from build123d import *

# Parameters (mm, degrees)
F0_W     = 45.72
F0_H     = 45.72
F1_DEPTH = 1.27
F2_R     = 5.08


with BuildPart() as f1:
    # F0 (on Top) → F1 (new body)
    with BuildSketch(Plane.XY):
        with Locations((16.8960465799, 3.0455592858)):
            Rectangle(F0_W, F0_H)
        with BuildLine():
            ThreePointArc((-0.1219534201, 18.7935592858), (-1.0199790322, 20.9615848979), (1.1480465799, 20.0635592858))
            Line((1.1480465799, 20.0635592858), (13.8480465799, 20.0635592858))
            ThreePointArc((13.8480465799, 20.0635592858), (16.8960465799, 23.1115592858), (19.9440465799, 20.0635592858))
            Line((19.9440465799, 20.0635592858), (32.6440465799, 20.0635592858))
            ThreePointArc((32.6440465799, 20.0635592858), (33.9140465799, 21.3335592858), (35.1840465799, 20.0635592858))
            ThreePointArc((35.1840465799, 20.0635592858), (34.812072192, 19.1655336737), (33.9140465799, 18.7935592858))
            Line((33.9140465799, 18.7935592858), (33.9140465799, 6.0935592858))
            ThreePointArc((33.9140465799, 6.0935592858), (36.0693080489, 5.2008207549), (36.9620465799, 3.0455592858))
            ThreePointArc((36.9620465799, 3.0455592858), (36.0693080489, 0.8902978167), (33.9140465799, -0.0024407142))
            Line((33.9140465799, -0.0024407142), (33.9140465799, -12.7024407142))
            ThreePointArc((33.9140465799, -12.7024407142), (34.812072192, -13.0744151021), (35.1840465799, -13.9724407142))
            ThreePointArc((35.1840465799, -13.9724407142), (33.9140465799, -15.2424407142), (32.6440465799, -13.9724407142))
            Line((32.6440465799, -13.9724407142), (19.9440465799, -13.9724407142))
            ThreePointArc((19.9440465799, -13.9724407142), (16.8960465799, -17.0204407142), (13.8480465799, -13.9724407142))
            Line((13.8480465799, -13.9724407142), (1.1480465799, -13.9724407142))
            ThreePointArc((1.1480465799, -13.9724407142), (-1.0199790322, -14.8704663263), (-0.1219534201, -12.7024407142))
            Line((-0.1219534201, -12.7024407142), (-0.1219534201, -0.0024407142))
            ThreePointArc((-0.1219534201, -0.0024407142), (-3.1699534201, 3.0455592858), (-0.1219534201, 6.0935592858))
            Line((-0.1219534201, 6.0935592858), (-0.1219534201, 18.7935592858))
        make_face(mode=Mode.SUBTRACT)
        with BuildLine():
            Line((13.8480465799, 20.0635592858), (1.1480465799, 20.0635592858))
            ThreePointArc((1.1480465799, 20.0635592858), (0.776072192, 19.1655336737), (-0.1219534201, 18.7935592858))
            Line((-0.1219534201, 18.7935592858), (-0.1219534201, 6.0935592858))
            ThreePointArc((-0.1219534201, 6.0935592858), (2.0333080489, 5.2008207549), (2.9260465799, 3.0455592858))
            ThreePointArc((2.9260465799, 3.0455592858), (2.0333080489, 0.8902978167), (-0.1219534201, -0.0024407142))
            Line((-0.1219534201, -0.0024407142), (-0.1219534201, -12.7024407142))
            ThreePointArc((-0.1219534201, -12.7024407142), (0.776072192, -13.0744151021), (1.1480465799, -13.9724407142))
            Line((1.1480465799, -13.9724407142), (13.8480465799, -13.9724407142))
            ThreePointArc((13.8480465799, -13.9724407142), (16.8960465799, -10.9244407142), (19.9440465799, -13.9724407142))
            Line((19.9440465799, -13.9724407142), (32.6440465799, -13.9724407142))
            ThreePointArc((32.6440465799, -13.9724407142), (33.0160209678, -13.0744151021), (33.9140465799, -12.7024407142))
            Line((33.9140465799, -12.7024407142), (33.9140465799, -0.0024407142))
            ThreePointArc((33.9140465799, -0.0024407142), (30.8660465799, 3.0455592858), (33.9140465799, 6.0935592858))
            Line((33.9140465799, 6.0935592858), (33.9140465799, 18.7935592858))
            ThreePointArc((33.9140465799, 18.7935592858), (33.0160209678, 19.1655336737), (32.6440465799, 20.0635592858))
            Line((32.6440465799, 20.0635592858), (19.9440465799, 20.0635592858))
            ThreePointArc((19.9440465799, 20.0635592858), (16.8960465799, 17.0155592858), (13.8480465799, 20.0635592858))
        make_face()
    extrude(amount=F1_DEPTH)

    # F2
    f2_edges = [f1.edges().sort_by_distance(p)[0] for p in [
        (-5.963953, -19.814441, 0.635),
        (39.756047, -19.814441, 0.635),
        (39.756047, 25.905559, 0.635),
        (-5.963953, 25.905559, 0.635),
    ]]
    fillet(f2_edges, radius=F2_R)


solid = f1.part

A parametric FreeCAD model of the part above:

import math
import FreeCAD as App
import Part
import Sketcher
from FreeCAD import Vector
Q = App.Units.Quantity


def edges_at(feature, points):
    """Names of the edges that pass closest to the given points."""
    edges = feature.Shape.Edges
    near = lambda p: min(range(len(edges)), key=lambda i: edges[i].distToShape(Part.Vertex(*p))[0])
    return sorted({f"Edge{near(p) + 1}" for p in points})

doc = App.newDocument("Part")
body = doc.addObject("PartDesign::Body", "Body")

sketch1 = body.newObject("Sketcher::SketchObject", "Sketch")
sketch1.AttachmentSupport = (doc.getObject("XY_Plane"), [""])
sketch1.MapMode = "FlatFace"
sketch1.addGeometry([
    Part.LineSegment(Vector(-5.963953, 25.905559, 0), Vector(-5.963953, -19.814441, 0)),
    Part.LineSegment(Vector(-5.963953, -19.814441, 0), Vector(39.756047, -19.814441, 0)),
    Part.LineSegment(Vector(39.756047, -19.814441, 0), Vector(39.756047, 25.905559, 0)),
    Part.LineSegment(Vector(39.756047, 25.905559, 0), Vector(-5.963953, 25.905559, 0)),
    Part.ArcOfCircle(Part.Circle(Vector(-0.121953, 3.045559, 0), Vector(0, 0, 1), 3.048), math.radians(90), math.radians(270)),
    Part.ArcOfCircle(Part.Circle(Vector(-0.121953, 3.045559, 0), Vector(0, 0, 1), 3.048), math.radians(0), math.radians(90)),
    Part.ArcOfCircle(Part.Circle(Vector(-0.121953, 3.045559, 0), Vector(0, 0, 1), 3.048), math.radians(-90), math.radians(0)),
    Part.ArcOfCircle(Part.Circle(Vector(-0.121953, -13.972441, 0), Vector(0, 0, 1), 1.27), math.radians(90), math.radians(360)),
    Part.ArcOfCircle(Part.Circle(Vector(-0.121953, -13.972441, 0), Vector(0, 0, 1), 1.27), math.radians(0), math.radians(90)),
    Part.Circle(Vector(16.896047, -13.972441, 0), Vector(0, 0, 1), 3.048),
    Part.ArcOfCircle(Part.Circle(Vector(33.914047, -13.972441, 0), Vector(0, 0, 1), 1.27), math.radians(180), math.radians(360)),
    Part.ArcOfCircle(Part.Circle(Vector(33.914047, -13.972441, 0), Vector(0, 0, 1), 1.27), math.radians(90), math.radians(180)),
    Part.ArcOfCircle(Part.Circle(Vector(33.914047, -13.972441, 0), Vector(0, 0, 1), 1.27), math.radians(0), math.radians(90)),
    Part.ArcOfCircle(Part.Circle(Vector(33.914047, 3.045559, 0), Vector(0, 0, 1), 3.048), math.radians(-90), math.radians(0)),
    Part.ArcOfCircle(Part.Circle(Vector(33.914047, 3.045559, 0), Vector(0, 0, 1), 3.048), math.radians(90), math.radians(270)),
    Part.ArcOfCircle(Part.Circle(Vector(33.914047, 3.045559, 0), Vector(0, 0, 1), 3.048), math.radians(0), math.radians(90)),
    Part.ArcOfCircle(Part.Circle(Vector(33.914047, 20.063559, 0), Vector(0, 0, 1), 1.27), math.radians(-90), math.radians(0)),
    Part.ArcOfCircle(Part.Circle(Vector(33.914047, 20.063559, 0), Vector(0, 0, 1), 1.27), math.radians(180), math.radians(270)),
    Part.ArcOfCircle(Part.Circle(Vector(33.914047, 20.063559, 0), Vector(0, 0, 1), 1.27), math.radians(0), math.radians(180)),
    Part.Circle(Vector(16.896047, 20.063559, 0), Vector(0, 0, 1), 3.048),
    Part.ArcOfCircle(Part.Circle(Vector(-0.121953, 20.063559, 0), Vector(0, 0, 1), 1.27), math.radians(0), math.radians(270)),
    Part.ArcOfCircle(Part.Circle(Vector(-0.121953, 20.063559, 0), Vector(0, 0, 1), 1.27), math.radians(-90), math.radians(0)),
], False)
sketch1.addConstraint([
    Sketcher.Constraint("Coincident", 0, 2, 1, 1),
    Sketcher.Constraint("Coincident", 1, 2, 2, 1),
    Sketcher.Constraint("Coincident", 2, 2, 3, 1),
    Sketcher.Constraint("Coincident", 3, 2, 0, 1),
    Sketcher.Constraint("Tangent", 4, 1, 5, 2),
    Sketcher.Constraint("Tangent", 5, 1, 6, 2),
    Sketcher.Constraint("Tangent", 6, 1, 4, 2),
    Sketcher.Constraint("Tangent", 7, 1, 8, 2),
    Sketcher.Constraint("Coincident", 8, 1, 7, 2),
    Sketcher.Constraint("Tangent", 10, 1, 11, 2),
    Sketcher.Constraint("Tangent", 11, 1, 12, 2),
    Sketcher.Constraint("Tangent", 12, 1, 10, 2),
    Sketcher.Constraint("Tangent", 13, 1, 14, 2),
    Sketcher.Constraint("Tangent", 14, 1, 15, 2),
    Sketcher.Constraint("Tangent", 15, 1, 13, 2),
    Sketcher.Constraint("Tangent", 16, 1, 17, 2),
    Sketcher.Constraint("Tangent", 17, 1, 18, 2),
    Sketcher.Constraint("Tangent", 18, 1, 16, 2),
    Sketcher.Constraint("Tangent", 20, 1, 21, 2),
    Sketcher.Constraint("Coincident", 21, 1, 20, 2),
    Sketcher.Constraint("Vertical", 0),
    Sketcher.Constraint("Horizontal", 1),
    Sketcher.Constraint("Vertical", 2),
    Sketcher.Constraint("Horizontal", 3),
    Sketcher.Constraint("Equal", 6, 9),
    Sketcher.Constraint("Equal", 8, 10),
    Sketcher.Constraint("Equal", 9, 13),
    Sketcher.Constraint("Equal", 12, 16),
    Sketcher.Constraint("Equal", 15, 19),
    Sketcher.Constraint("Equal", 18, 20),
    Sketcher.Constraint("Horizontal", 8, 3, 9, 3),
    Sketcher.Constraint("Horizontal", 9, 3, 10, 3),
    Sketcher.Constraint("Horizontal", 6, 3, 13, 3),
    Sketcher.Constraint("Horizontal", 18, 3, 19, 3),
    Sketcher.Constraint("Horizontal", 19, 3, 20, 3),
    Sketcher.Constraint("Horizontal", 15, 3, 5, 1),
    Sketcher.Constraint("Horizontal", 12, 3, 8, 1),
    Sketcher.Constraint("Horizontal", 8, 1, 10, 1),
    Sketcher.Constraint("Horizontal", 10, 1, 12, 1),
    Sketcher.Constraint("Horizontal", 5, 1, 15, 1),
    Sketcher.Constraint("Horizontal", 21, 3, 17, 1),
    Sketcher.Constraint("Horizontal", 17, 1, 18, 1),
    Sketcher.Constraint("Horizontal", 18, 1, 20, 1),
    Sketcher.Constraint("Vertical", 6, 3, 7, 3),
    Sketcher.Constraint("Vertical", 12, 3, 13, 3),
    Sketcher.Constraint("Vertical", 15, 3, 16, 3),
    Sketcher.Constraint("Vertical", 9, 3, 19, 3),
    Sketcher.Constraint("Vertical", 8, 3, 20, 3),
    Sketcher.Constraint("Vertical", 21, 3, 4, 1),
    Sketcher.Constraint("Vertical", 4, 1, 6, 1),
    Sketcher.Constraint("Vertical", 6, 1, 7, 1),
    Sketcher.Constraint("Vertical", 18, 3, 11, 1),
    Sketcher.Constraint("Vertical", 11, 1, 13, 1),
    Sketcher.Constraint("Vertical", 13, 1, 14, 1),
    Sketcher.Constraint("Vertical", 14, 1, 16, 1),
    Sketcher.Constraint("Vertical", 7, 1, 21, 1),
    Sketcher.Constraint("Equal", 3, 0),
    Sketcher.Constraint("Diameter", 9, Q("0.24 in")),
    Sketcher.Constraint("Radius", 7, Q("0.05 in")),
    Sketcher.Constraint("DistanceX", 1, 1, 1, 2, Q("1.8 in")),
    Sketcher.Constraint("DistanceY", 0, 2, 4, 3, Q("0.9 in")),
    Sketcher.Constraint("DistanceY", 7, 1, 6, 1, Q("0.5 in")),
    Sketcher.Constraint("DistanceY", 14, 1, 16, 1, Q("0.5 in")),
    Sketcher.Constraint("DistanceX", 7, 3, 9, 3, Q("0.67 in")),
    Sketcher.Constraint("DistanceX", 9, 3, 10, 3, Q("0.67 in")),
    Sketcher.Constraint("DistanceX", 0, 2, 7, 3, Q("0.23 in")),
    Sketcher.Constraint("DistanceY", -1, 1, 4, 3, 3.045559),
    Sketcher.Constraint("DistanceX", 4, 3, -1, 1, 0.121953),
])
pad1 = body.newObject("PartDesign::Pad", "Pad")
pad1.Profile = sketch1
pad1.Length = Q("0.05 in")
doc.recompute()

fillet = body.newObject("PartDesign::Fillet", "Fillet")
fillet.Base = (pad1, edges_at(pad1, [
    (-5.964, -19.814, 0.635),
    (39.756, -19.814, 0.635),
    (39.756, 25.906, 0.635),
    (-5.964, 25.906, 0.635),
]))
fillet.Radius = Q("0.2 in")

doc.recompute()
